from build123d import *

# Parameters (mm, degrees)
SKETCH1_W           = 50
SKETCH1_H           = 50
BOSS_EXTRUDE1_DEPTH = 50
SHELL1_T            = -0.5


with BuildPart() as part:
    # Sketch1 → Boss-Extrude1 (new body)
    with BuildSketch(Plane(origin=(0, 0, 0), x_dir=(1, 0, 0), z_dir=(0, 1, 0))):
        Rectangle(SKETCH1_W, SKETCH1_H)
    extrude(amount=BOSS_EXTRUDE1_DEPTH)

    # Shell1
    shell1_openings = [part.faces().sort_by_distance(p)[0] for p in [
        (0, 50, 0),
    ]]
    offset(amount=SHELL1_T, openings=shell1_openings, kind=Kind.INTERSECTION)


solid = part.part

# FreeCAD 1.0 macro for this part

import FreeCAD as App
import Part
import Sketcher
from FreeCAD import Vector
Q = App.Units.Quantity


def faces_at(feature, points):
    """Names of the faces that lie closest to the given points."""
    faces = feature.Shape.Faces
    near = lambda p: min(range(len(faces)), key=lambda i: faces[i].distToShape(Part.Vertex(*p))[0])
    return sorted({f"Face{near(p) + 1}" for p in points})


def add_polygon(sketch, points):
    """Adds a closed chain of lines whose ends are joined by coincident constraints."""
    first, n = sketch.GeometryCount, len(points)
    for a, b in zip(points, points[1:] + points[:1]):
        sketch.addGeometry(Part.LineSegment(App.Vector(*a, 0), App.Vector(*b, 0)), False)
    for i in range(n):
        sketch.addConstraint(Sketcher.Constraint("Coincident", first + i, 2, first + (i + 1) % n, 1))

doc = App.newDocument("Part")
body = doc.addObject("PartDesign::Body", "Body")

# Sketch on XZ plane
sketch1 = body.newObject("Sketcher::SketchObject", "Sketch")
sketch1.AttachmentSupport = (doc.getObject("XZ_Plane"), [""])
sketch1.MapMode = "FlatFace"
add_polygon(sketch1, [(-25, -25), (-25, 25), (25, 25), (25, -25)])  # lines 0-3
sketch1.addConstraint([
    Sketcher.Constraint("Vertical", 0),
    Sketcher.Constraint("Horizontal", 1),
    Sketcher.Constraint("Vertical", 2),
    Sketcher.Constraint("Horizontal", 3),
    Sketcher.Constraint("Symmetric", 0, 2, 2, 2, -1, 1),
    Sketcher.Constraint("Equal", 3, 0),
    Sketcher.Constraint("DistanceX", 1, 1, 1, 2, Q("50 mm")),
])
pad1 = body.newObject("PartDesign::Pad", "Pad")
pad1.Profile = sketch1
pad1.Length = 50
pad1.Reversed = True
doc.recompute()

thickness = body.newObject("PartDesign::Thickness", "Thickness")
thickness.Base = (pad1, faces_at(pad1, [(0, 50, 0)]))
thickness.Value = 0.5
thickness.Reversed = True
thickness.Join = "Intersection"

doc.recompute()
